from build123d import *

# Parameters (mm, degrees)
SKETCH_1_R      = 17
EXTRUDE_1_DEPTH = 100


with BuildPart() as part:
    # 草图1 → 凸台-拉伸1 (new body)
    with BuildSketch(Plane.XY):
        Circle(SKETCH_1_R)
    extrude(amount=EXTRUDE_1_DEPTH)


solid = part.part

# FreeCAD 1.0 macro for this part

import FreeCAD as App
import Part
import Sketcher
from FreeCAD import Vector
Q = App.Units.Quantity

doc = App.newDocument("Part")
body = doc.addObject("PartDesign::Body", "Body")

sketch1 = doc.addObject("Sketcher::SketchObject", "Sketch")
body.addObject(sketch1)
sketch1.AttachmentSupport = (doc.XY_Plane, [""])
sketch1.MapMode = "FlatFace"
sketch1.addGeometry(Part.Circle(Vector(0, 0, 0), Vector(0, 0, 1), 17), False)
sketch1.addConstraint(Sketcher.Constraint("Coincident", 0, 3, -1, 1))
sketch1.addConstraint(Sketcher.Constraint("Diameter", 0, Q("34 mm")))
pad1 = doc.addObject("PartDesign::Pad", "Pad")
body.addObject(pad1)
pad1.Profile = sketch1
pad1.Length = 100

doc.recompute()
